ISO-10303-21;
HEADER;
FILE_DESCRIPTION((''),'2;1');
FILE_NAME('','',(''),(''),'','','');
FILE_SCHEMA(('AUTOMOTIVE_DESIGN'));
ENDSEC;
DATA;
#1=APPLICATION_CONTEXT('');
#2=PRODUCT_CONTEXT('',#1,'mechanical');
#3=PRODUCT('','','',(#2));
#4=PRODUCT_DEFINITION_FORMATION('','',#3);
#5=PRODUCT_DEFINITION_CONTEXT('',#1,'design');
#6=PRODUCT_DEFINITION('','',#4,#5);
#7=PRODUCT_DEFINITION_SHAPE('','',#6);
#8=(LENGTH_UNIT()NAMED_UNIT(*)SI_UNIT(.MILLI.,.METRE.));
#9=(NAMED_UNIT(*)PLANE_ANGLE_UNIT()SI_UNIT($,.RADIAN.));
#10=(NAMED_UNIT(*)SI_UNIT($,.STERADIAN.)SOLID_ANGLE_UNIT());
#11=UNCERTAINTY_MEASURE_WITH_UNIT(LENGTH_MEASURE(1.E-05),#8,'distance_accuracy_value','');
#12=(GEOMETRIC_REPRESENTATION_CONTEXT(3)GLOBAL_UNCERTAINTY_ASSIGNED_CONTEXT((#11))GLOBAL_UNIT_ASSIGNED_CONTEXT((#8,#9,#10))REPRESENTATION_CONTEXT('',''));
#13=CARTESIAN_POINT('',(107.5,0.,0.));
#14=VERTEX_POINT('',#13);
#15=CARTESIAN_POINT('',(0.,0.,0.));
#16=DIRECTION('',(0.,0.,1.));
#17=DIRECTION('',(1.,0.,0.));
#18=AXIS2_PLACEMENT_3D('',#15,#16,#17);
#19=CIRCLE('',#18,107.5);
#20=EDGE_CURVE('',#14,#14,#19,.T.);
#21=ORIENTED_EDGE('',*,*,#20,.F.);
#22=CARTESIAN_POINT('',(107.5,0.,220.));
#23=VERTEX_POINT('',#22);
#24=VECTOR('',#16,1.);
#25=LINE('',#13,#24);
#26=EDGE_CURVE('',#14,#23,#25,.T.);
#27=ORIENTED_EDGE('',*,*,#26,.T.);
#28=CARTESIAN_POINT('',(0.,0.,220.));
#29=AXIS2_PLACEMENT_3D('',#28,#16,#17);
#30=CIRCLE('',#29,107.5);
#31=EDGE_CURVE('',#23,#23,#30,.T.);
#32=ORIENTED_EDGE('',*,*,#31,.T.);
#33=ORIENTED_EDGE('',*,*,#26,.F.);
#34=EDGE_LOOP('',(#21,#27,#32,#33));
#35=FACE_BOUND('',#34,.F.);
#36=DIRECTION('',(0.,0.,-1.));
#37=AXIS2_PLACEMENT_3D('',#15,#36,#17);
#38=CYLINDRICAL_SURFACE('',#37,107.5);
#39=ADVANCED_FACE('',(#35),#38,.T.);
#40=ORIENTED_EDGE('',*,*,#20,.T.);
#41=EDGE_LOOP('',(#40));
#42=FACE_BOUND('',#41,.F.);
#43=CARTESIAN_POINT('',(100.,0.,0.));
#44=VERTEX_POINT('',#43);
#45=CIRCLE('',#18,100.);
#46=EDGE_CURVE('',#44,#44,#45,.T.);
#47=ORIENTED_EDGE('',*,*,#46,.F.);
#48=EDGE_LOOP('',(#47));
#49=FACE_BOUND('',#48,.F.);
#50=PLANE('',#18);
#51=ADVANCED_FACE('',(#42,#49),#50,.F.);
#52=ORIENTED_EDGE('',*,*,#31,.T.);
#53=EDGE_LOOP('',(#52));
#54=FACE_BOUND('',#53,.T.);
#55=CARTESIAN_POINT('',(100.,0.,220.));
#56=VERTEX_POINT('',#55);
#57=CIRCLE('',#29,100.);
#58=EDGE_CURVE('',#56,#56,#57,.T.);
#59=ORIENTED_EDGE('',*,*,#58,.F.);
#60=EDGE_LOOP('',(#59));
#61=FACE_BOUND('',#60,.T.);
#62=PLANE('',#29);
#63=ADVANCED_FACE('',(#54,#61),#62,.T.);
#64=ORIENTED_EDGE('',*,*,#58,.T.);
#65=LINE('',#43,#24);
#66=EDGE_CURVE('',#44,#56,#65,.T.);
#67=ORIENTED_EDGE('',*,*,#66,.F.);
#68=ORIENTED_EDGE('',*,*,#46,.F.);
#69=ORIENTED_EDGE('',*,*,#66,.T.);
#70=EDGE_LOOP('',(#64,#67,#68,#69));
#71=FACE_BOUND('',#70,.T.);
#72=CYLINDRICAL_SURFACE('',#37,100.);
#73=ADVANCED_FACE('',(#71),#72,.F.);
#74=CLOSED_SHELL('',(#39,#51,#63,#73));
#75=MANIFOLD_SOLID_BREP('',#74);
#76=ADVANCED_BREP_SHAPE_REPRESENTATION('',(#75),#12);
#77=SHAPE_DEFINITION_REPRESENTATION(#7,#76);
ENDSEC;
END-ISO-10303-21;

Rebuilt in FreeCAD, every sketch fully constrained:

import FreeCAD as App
import Part
import Sketcher
from FreeCAD import Vector
Q = App.Units.Quantity

doc = App.newDocument("Part")
body = doc.addObject("PartDesign::Body", "Body")

sketch1 = doc.addObject("Sketcher::SketchObject", "Sketch")
body.addObject(sketch1)
sketch1.AttachmentSupport = (doc.XY_Plane, [""])
sketch1.MapMode = "FlatFace"
sketch1.addGeometry(Part.Circle(Vector(0, 0, 0), Vector(0, 0, 1), 107.5), False)
sketch1.addGeometry(Part.Circle(Vector(0, 0, 0), Vector(0, 0, 1), 100), False)
sketch1.addConstraint(Sketcher.Constraint("Coincident", 0, 3, -1, 1))
sketch1.addConstraint(Sketcher.Constraint("Coincident", 1, 3, -1, 1))
sketch1.addConstraint(Sketcher.Constraint("Diameter", 0, Q("215 mm")))
sketch1.addConstraint(Sketcher.Constraint("Diameter", 1, Q("200 mm")))
pad1 = doc.addObject("PartDesign::Pad", "Pad")
body.addObject(pad1)
pad1.Profile = sketch1
pad1.Length = 220

doc.recompute()
